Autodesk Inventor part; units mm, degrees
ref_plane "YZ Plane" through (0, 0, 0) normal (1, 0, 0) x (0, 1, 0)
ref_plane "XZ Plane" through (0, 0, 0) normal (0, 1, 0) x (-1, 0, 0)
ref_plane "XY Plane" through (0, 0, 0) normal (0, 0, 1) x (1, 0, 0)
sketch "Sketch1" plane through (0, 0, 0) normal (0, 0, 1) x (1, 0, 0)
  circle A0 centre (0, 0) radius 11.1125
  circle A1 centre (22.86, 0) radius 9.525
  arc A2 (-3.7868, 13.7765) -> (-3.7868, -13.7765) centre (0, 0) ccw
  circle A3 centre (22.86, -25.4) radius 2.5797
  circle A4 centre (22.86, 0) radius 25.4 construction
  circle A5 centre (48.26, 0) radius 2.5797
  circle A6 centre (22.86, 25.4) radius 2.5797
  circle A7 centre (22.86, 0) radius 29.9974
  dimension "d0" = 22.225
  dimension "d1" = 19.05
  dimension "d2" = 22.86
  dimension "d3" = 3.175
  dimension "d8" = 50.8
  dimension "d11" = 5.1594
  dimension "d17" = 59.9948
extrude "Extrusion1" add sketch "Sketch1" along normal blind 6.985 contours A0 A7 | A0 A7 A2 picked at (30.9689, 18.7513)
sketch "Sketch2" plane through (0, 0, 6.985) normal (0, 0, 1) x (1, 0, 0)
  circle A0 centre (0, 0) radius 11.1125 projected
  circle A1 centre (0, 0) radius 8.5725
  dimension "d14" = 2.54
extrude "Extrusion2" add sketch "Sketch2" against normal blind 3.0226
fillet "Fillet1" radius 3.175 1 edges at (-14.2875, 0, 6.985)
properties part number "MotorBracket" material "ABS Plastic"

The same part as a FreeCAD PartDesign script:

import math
import FreeCAD as App
import Part
import Sketcher
Q = App.Units.Quantity


def edges_at(feature, points):
    """Names of the edges that pass closest to the given points."""
    edges = feature.Shape.Edges
    near = lambda p: min(range(len(edges)), key=lambda i: edges[i].distToShape(Part.Vertex(*p))[0])
    return sorted({f"Edge{near(p) + 1}" for p in points})

doc = App.newDocument("Part")
body = doc.addObject("PartDesign::Body", "Body")

# Sketch on XY plane
sketch1 = body.newObject("Sketcher::SketchObject", "Sketch")
sketch1.AttachmentSupport = (doc.getObject("XY_Plane"), [""])
sketch1.MapMode = "FlatFace"
sketch1.addGeometry([
    Part.ArcOfCircle(Part.Circle(App.Vector(0, 0, 0), App.Vector(0, 0, 1), 14.28747), math.radians(105.369533), math.radians(254.630467)),  # 0
    Part.ArcOfCircle(Part.Circle(App.Vector(22.86, 0, 0), App.Vector(0, 0, 1), 29.9974), math.radians(-152.660859), math.radians(152.660859)),  # 1
    Part.Circle(App.Vector(0, 0, 0), App.Vector(0, 0, 1), 11.1125),  # 2
    Part.Circle(App.Vector(22.86, -25.4, 0), App.Vector(0, 0, 1), 2.5797),  # 3
    Part.Circle(App.Vector(22.86, 0, 0), App.Vector(0, 0, 1), 9.525),  # 4
    Part.Circle(App.Vector(48.26, 0, 0), App.Vector(0, 0, 1), 2.5797),  # 5
    Part.Circle(App.Vector(22.86, 25.4, 0), App.Vector(0, 0, 1), 2.5797),  # 6
], False)
sketch1.addConstraint([
    Sketcher.Constraint("Coincident", 0, 1, 1, 2),
    Sketcher.Constraint("Coincident", 1, 1, 0, 2),
    Sketcher.Constraint("Coincident", 0, 3, -1, 1),
    Sketcher.Constraint("Coincident", 2, 3, -1, 1),
    Sketcher.Constraint("Coincident", 4, 3, 1, 3),
    Sketcher.Constraint("Equal", 3, 5),
    Sketcher.Constraint("Equal", 5, 6),
    Sketcher.Constraint("Symmetric", 3, 3, 6, 3, -1),
    Sketcher.Constraint("PointOnObject", 1, 3, -1),
    Sketcher.Constraint("PointOnObject", 5, 3, -1),
    Sketcher.Constraint("Vertical", 1, 3, 3, 3),
    Sketcher.Constraint("Diameter", 4, Q("0.75 in")),
    Sketcher.Constraint("Diameter", 2, Q("0.875 in")),
    Sketcher.Constraint("Diameter", 3, Q("0.203126 in")),
    Sketcher.Constraint("Radius", 1, Q("1.181 in")),
    Sketcher.Constraint("DistanceX", -1, 1, 1, 3, Q("0.9 in")),
    Sketcher.Constraint("DistanceY", 3, 3, -1, 1, Q("1 in")),
    Sketcher.Constraint("Radius", 0, Q("0.5625 in")),
    Sketcher.Constraint("DistanceX", 1, 3, 5, 3, Q("1 in")),
])
pad1 = body.newObject("PartDesign::Pad", "Pad")
pad1.Profile = sketch1
pad1.Length = Q("0.275 in")

# Sketch on XY plane
sketch2 = body.newObject("Sketcher::SketchObject", "Sketch001")
sketch2.AttachmentSupport = (doc.getObject("XY_Plane"), [""])
sketch2.MapMode = "FlatFace"
sketch2.AttachmentOffset = App.Placement(App.Vector(0, 0, 0.275 * 25.4), App.Rotation())
sketch2.addGeometry([
    Part.Circle(App.Vector(0, 0, 0), App.Vector(0, 0, 1), 11.1125),
    Part.Circle(App.Vector(0, 0, 0), App.Vector(0, 0, 1), 8.5725),
], False)
sketch2.addConstraint([
    Sketcher.Constraint("Coincident", 0, 3, -1, 1),
    Sketcher.Constraint("Coincident", 1, 3, -1, 1),
    Sketcher.Constraint("Diameter", 0, Q("0.875 in")),
    Sketcher.Constraint("Diameter", 1, Q("0.675 in")),
])
pad2 = body.newObject("PartDesign::Pad", "Pad001")
pad2.Profile = sketch2
pad2.Length = Q("0.119 in")
pad2.Reversed = True
doc.recompute()

fillet = body.newObject("PartDesign::Fillet", "Fillet")
fillet.Base = (pad2, edges_at(pad2, [(-14.287, 0, 6.985)]))
fillet.Radius = Q("0.125 in")

doc.recompute()
